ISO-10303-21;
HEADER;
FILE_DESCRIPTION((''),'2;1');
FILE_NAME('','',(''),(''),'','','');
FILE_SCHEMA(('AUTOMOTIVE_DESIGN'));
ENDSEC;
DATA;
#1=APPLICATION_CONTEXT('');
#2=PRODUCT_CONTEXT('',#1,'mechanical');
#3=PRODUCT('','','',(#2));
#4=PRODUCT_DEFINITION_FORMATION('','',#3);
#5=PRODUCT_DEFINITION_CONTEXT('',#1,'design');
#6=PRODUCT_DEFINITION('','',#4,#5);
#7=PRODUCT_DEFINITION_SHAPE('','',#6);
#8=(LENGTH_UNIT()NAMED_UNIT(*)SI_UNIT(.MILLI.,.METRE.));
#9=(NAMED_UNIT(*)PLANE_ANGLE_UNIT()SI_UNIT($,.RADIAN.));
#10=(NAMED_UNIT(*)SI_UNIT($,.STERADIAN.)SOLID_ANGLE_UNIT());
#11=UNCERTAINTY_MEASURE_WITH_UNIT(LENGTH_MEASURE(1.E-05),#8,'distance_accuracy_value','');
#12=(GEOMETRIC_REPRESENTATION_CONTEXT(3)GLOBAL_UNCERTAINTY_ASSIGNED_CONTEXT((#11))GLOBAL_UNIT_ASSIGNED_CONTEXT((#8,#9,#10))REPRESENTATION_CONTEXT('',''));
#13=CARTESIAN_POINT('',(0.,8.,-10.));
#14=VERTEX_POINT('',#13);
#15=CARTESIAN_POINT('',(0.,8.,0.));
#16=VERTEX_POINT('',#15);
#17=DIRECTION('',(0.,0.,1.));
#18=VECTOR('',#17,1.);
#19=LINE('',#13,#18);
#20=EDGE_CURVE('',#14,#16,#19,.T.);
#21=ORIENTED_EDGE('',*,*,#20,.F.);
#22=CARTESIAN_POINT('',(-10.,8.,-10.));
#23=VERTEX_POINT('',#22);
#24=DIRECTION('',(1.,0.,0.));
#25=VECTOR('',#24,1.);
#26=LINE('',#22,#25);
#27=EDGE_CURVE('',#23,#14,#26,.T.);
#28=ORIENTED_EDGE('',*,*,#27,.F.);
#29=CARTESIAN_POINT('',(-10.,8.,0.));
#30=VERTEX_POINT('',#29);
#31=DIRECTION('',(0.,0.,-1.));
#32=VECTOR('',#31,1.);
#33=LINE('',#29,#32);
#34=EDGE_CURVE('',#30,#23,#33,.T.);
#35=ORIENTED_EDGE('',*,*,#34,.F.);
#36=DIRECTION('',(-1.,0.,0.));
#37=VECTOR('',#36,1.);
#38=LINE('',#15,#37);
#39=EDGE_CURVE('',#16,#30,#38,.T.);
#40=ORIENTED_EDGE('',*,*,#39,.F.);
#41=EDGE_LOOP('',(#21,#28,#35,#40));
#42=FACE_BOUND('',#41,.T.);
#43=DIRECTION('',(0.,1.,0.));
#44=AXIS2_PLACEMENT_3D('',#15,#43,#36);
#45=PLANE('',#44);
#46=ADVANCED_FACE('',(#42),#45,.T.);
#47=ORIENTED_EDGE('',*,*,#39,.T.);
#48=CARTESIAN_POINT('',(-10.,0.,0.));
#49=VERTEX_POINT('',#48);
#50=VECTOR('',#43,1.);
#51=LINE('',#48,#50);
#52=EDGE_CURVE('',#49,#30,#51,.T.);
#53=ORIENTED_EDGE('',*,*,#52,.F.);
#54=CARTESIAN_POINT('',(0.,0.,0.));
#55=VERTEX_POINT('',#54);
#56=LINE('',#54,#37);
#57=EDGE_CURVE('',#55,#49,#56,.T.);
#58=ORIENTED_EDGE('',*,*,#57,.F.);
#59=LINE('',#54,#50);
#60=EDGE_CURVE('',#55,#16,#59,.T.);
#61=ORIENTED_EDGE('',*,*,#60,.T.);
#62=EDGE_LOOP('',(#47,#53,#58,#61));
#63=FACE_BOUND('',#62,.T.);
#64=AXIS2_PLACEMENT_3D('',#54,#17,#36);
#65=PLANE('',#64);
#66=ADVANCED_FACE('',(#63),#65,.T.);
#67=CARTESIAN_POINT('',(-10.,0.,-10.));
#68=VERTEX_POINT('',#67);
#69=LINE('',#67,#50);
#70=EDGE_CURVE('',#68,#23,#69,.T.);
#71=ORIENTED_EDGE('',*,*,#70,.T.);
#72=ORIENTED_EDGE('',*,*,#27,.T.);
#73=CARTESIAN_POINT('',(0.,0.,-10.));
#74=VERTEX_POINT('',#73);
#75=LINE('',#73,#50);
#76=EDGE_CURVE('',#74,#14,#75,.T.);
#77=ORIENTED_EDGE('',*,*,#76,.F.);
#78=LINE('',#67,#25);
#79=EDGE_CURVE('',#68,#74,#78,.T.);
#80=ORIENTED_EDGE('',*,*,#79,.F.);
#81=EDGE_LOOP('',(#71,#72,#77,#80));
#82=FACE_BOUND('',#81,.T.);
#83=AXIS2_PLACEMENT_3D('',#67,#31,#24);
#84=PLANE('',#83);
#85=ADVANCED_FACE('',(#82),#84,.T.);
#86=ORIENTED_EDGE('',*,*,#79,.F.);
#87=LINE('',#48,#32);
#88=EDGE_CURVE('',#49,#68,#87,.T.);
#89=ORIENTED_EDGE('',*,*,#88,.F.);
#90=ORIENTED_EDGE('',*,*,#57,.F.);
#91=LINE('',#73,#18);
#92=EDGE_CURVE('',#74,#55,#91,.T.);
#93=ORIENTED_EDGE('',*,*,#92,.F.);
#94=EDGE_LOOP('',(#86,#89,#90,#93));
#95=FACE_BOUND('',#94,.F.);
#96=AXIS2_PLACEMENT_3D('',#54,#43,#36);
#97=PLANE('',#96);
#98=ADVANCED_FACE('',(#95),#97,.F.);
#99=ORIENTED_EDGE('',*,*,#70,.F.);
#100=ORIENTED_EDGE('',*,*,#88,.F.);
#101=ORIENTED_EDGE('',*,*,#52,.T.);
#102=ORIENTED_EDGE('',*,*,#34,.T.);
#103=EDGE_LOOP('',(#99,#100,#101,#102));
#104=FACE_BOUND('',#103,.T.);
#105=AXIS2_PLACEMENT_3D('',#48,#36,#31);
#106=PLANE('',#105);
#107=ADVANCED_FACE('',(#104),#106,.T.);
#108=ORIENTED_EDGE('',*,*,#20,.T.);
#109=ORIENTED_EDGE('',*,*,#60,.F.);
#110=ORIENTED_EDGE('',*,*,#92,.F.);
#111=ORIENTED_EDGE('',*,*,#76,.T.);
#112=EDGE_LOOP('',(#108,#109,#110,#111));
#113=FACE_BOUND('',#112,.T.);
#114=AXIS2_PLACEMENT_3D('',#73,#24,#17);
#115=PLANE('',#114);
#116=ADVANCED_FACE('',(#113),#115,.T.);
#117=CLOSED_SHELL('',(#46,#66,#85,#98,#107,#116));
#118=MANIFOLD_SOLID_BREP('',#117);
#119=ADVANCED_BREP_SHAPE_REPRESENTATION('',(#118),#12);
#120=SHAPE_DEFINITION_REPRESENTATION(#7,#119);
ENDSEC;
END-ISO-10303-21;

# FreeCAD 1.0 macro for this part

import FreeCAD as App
import Part
import Sketcher
from FreeCAD import Vector
Q = App.Units.Quantity


def add_polygon(sketch, points):
    """Adds a closed chain of lines whose ends are joined by coincident constraints."""
    first, n = sketch.GeometryCount, len(points)
    for a, b in zip(points, points[1:] + points[:1]):
        sketch.addGeometry(Part.LineSegment(App.Vector(*a, 0), App.Vector(*b, 0)), False)
    for i in range(n):
        sketch.addConstraint(Sketcher.Constraint("Coincident", first + i, 2, first + (i + 1) % n, 1))

doc = App.newDocument("Part")
body = doc.addObject("PartDesign::Body", "Body")

sketch1 = body.newObject("Sketcher::SketchObject", "Sketch")
sketch1.AttachmentSupport = (doc.getObject("XZ_Plane"), [""])
sketch1.MapMode = "FlatFace"
add_polygon(sketch1, [(-10, 0), (0, 0), (0, -10), (-10, -10)])
sketch1.addConstraint([
    Sketcher.Constraint("Horizontal", 0),
    Sketcher.Constraint("Vertical", 1),
    Sketcher.Constraint("Horizontal", 2),
    Sketcher.Constraint("Vertical", 3),
    Sketcher.Constraint("Coincident", 0, 2, -1, 1),
    Sketcher.Constraint("Equal", 2, 1),
    Sketcher.Constraint("DistanceX", 0, 1, 0, 2, Q("10 mm")),
])
pad1 = body.newObject("PartDesign::Pad", "Pad")
pad1.Profile = sketch1
pad1.Length = 8
pad1.Reversed = True

doc.recompute()
